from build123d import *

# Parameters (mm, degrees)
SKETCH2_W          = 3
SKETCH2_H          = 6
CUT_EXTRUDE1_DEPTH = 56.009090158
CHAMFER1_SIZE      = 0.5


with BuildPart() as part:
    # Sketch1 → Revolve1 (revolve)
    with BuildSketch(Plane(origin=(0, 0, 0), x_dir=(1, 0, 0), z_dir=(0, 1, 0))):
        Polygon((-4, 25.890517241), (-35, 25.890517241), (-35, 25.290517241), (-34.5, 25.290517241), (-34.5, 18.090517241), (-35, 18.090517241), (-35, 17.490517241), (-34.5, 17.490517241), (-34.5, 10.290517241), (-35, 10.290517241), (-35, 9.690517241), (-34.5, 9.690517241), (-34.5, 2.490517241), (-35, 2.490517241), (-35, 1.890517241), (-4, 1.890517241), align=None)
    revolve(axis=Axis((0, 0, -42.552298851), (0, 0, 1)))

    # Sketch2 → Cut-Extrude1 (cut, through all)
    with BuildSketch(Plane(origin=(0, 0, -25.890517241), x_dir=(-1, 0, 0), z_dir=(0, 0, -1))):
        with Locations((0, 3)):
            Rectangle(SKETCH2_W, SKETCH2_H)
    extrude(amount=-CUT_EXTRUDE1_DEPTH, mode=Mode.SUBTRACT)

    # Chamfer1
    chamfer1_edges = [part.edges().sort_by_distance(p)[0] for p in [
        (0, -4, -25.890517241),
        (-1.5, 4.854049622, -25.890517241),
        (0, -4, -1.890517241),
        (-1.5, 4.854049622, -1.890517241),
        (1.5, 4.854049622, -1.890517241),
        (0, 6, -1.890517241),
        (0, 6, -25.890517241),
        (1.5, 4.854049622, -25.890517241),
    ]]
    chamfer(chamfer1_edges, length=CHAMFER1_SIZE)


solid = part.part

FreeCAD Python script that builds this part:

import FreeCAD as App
import Part
import Sketcher


def edges_at(feature, points):
    """Names of the edges that pass closest to the given points."""
    edges = feature.Shape.Edges
    near = lambda p: min(range(len(edges)), key=lambda i: edges[i].distToShape(Part.Vertex(*p))[0])
    return sorted({f"Edge{near(p) + 1}" for p in points})

doc = App.newDocument("Part")
params = doc.addObject("Spreadsheet::Sheet", "Params")
for row, (alias, value) in enumerate([
    ("sketch1_width", "31 mm"),
    ("sketch1_height", "24 mm"),
    ("sketch1_width2", "0.5 mm"),
    ("sketch1_height2", "0.6 mm"),
    ("revolution_angle", "360 deg"),
    ("sketch2_width", "3 mm"),
    ("sketch2_height", "6 mm"),
    ("chamfer_size", "0.5 mm"),
], start=1):
    params.set(f"A{row}", alias)
    params.set(f"B{row}", "=" + value)
    params.setAlias(f"B{row}", alias)

body = doc.addObject("PartDesign::Body", "Body")

sketch1 = doc.addObject("Sketcher::SketchObject", "Sketch")
body.addObject(sketch1)
sketch1.AttachmentSupport = (doc.XZ_Plane, [""])
sketch1.MapMode = "FlatFace"
sketch1.addGeometry([
    Part.LineSegment(App.Vector(-4, -25.890517, 0), App.Vector(-35, -25.890517, 0)),
    Part.LineSegment(App.Vector(-35, -25.890517, 0), App.Vector(-35, -25.290517, 0)),
    Part.LineSegment(App.Vector(-35, -25.290517, 0), App.Vector(-34.5, -25.290517, 0)),
    Part.LineSegment(App.Vector(-34.5, -25.290517, 0), App.Vector(-34.5, -18.090517, 0)),
    Part.LineSegment(App.Vector(-34.5, -18.090517, 0), App.Vector(-35, -18.090517, 0)),
    Part.LineSegment(App.Vector(-35, -18.090517, 0), App.Vector(-35, -17.490517, 0)),
    Part.LineSegment(App.Vector(-35, -17.490517, 0), App.Vector(-34.5, -17.490517, 0)),
    Part.LineSegment(App.Vector(-34.5, -17.490517, 0), App.Vector(-34.5, -10.290517, 0)),
    Part.LineSegment(App.Vector(-34.5, -10.290517, 0), App.Vector(-35, -10.290517, 0)),
    Part.LineSegment(App.Vector(-35, -10.290517, 0), App.Vector(-35, -9.690517, 0)),
    Part.LineSegment(App.Vector(-35, -9.690517, 0), App.Vector(-34.5, -9.690517, 0)),
    Part.LineSegment(App.Vector(-34.5, -9.690517, 0), App.Vector(-34.5, -2.490517, 0)),
    Part.LineSegment(App.Vector(-34.5, -2.490517, 0), App.Vector(-35, -2.490517, 0)),
    Part.LineSegment(App.Vector(-35, -2.490517, 0), App.Vector(-35, -1.890517, 0)),
    Part.LineSegment(App.Vector(-35, -1.890517, 0), App.Vector(-4, -1.890517, 0)),
    Part.LineSegment(App.Vector(-4, -1.890517, 0), App.Vector(-4, -25.890517, 0)),
], False)
sketch1.addConstraint([
    Sketcher.Constraint("Coincident", 0, 2, 1, 1),
    Sketcher.Constraint("Coincident", 1, 2, 2, 1),
    Sketcher.Constraint("Coincident", 2, 2, 3, 1),
    Sketcher.Constraint("Coincident", 3, 2, 4, 1),
    Sketcher.Constraint("Coincident", 4, 2, 5, 1),
    Sketcher.Constraint("Coincident", 5, 2, 6, 1),
    Sketcher.Constraint("Coincident", 6, 2, 7, 1),
    Sketcher.Constraint("Coincident", 7, 2, 8, 1),
    Sketcher.Constraint("Coincident", 8, 2, 9, 1),
    Sketcher.Constraint("Coincident", 9, 2, 10, 1),
    Sketcher.Constraint("Coincident", 10, 2, 11, 1),
    Sketcher.Constraint("Coincident", 11, 2, 12, 1),
    Sketcher.Constraint("Coincident", 12, 2, 13, 1),
    Sketcher.Constraint("Coincident", 13, 2, 14, 1),
    Sketcher.Constraint("Coincident", 14, 2, 15, 1),
    Sketcher.Constraint("Coincident", 15, 2, 0, 1),
    Sketcher.Constraint("Horizontal", 0),
    Sketcher.Constraint("Vertical", 1),
    Sketcher.Constraint("Horizontal", 2),
    Sketcher.Constraint("Vertical", 3),
    Sketcher.Constraint("Horizontal", 4),
    Sketcher.Constraint("Vertical", 5),
    Sketcher.Constraint("Horizontal", 6),
    Sketcher.Constraint("Vertical", 7),
    Sketcher.Constraint("Horizontal", 8),
    Sketcher.Constraint("Vertical", 9),
    Sketcher.Constraint("Horizontal", 10),
    Sketcher.Constraint("Vertical", 11),
    Sketcher.Constraint("Horizontal", 12),
    Sketcher.Constraint("Vertical", 13),
    Sketcher.Constraint("Horizontal", 14),
    Sketcher.Constraint("Vertical", 15),
    Sketcher.Constraint("Vertical", 1, 2, 4, 2),
    Sketcher.Constraint("Vertical", 3, 2, 6, 2),
    Sketcher.Constraint("Vertical", 5, 2, 8, 2),
    Sketcher.Constraint("Vertical", 7, 2, 10, 2),
    Sketcher.Constraint("Vertical", 9, 2, 12, 2),
    Sketcher.Constraint("Equal", 1, 5),
    Sketcher.Constraint("Equal", 3, 7),
    Sketcher.Constraint("Equal", 5, 9),
    Sketcher.Constraint("Equal", 7, 11),
    Sketcher.Constraint("Equal", 9, 13),
    Sketcher.Constraint("DistanceX", 0, 2, 0, 1, 31.0),
    Sketcher.Constraint("DistanceY", 15, 2, 15, 1, 24.0),
    Sketcher.Constraint("DistanceX", 2, 1, 2, 2, 0.5),
    Sketcher.Constraint("DistanceY", 1, 1, 1, 2, 0.6),
    Sketcher.Constraint("DistanceX", 0, 2, -1, 1, 35.0),
    Sketcher.Constraint("DistanceY", 0, 2, -1, 1, 25.890517),
])
sketch1.setExpression("Constraints[42]", "Params.sketch1_width")
sketch1.setExpression("Constraints[43]", "Params.sketch1_height")
sketch1.setExpression("Constraints[44]", "Params.sketch1_width2")
sketch1.setExpression("Constraints[45]", "Params.sketch1_height2")
revolution = doc.addObject("PartDesign::Revolution", "Revolution")
body.addObject(revolution)
revolution.Profile = sketch1
revolution.ReferenceAxis = (sketch1, ["V_Axis"])
revolution.setExpression("Angle", "Params.revolution_angle")

sketch2 = doc.addObject("Sketcher::SketchObject", "Sketch001")
body.addObject(sketch2)
sketch2.AttachmentSupport = (doc.XY_Plane, [""])
sketch2.MapMode = "FlatFace"
sketch2.AttachmentOffset = App.Placement(App.Vector(0, 0, -25.890517), App.Rotation())
sketch2.addGeometry([
    Part.LineSegment(App.Vector(1.5, 6, 0), App.Vector(1.5, 0, 0)),
    Part.LineSegment(App.Vector(1.5, 0, 0), App.Vector(-1.5, 0, 0)),
    Part.LineSegment(App.Vector(-1.5, 0, 0), App.Vector(-1.5, 6, 0)),
    Part.LineSegment(App.Vector(-1.5, 6, 0), App.Vector(1.5, 6, 0)),
], False)
sketch2.addConstraint([
    Sketcher.Constraint("Coincident", 0, 2, 1, 1),
    Sketcher.Constraint("Coincident", 1, 2, 2, 1),
    Sketcher.Constraint("Coincident", 2, 2, 3, 1),
    Sketcher.Constraint("Coincident", 3, 2, 0, 1),
    Sketcher.Constraint("Vertical", 0),
    Sketcher.Constraint("Horizontal", 1),
    Sketcher.Constraint("Vertical", 2),
    Sketcher.Constraint("Horizontal", 3),
    Sketcher.Constraint("Symmetric", 0, 2, 1, 2, -1, 1),
    Sketcher.Constraint("DistanceX", 1, 2, 1, 1, 3.0),
    Sketcher.Constraint("DistanceY", 0, 2, 0, 1, 6.0),
])
sketch2.setExpression("Constraints[9]", "Params.sketch2_width")
sketch2.setExpression("Constraints[10]", "Params.sketch2_height")
pocket1 = doc.addObject("PartDesign::Pocket", "Pocket")
body.addObject(pocket1)
pocket1.Profile = sketch2
pocket1.Type = "ThroughAll"
pocket1.Reversed = True
doc.recompute()

chamfer = doc.addObject("PartDesign::Chamfer", "Chamfer")
body.addObject(chamfer)
chamfer.Base = (pocket1, edges_at(pocket1, [
    (0, -4, -25.891),
    (-1.5, 4.854, -25.891),
    (0, -4, -1.891),
    (-1.5, 4.854, -1.891),
    (1.5, 4.854, -1.891),
    (0, 6, -1.891),
    (0, 6, -25.891),
    (1.5, 4.854, -25.891),
]))
chamfer.setExpression("Size", "Params.chamfer_size")

doc.recompute()
